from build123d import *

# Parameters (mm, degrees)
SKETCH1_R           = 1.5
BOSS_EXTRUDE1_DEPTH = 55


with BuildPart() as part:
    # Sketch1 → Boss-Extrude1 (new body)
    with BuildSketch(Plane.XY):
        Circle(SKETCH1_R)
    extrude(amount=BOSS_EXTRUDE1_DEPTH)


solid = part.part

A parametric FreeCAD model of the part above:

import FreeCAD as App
import Part
import Sketcher

V = App.Vector

doc = App.newDocument("Part")
body = doc.addObject("PartDesign::Body", "Body")

# Sketch on XY plane
sketch1 = body.newObject("Sketcher::SketchObject", "Sketch")
sketch1.AttachmentSupport = (doc.getObject("XY_Plane"), [""])
sketch1.MapMode = "FlatFace"
sketch1.addGeometry(Part.Circle(V(0, 0, 0), V(0, 0, 1), 1.5), False)
sketch1.addConstraint([
    Sketcher.Constraint("Coincident", 0, 3, -1, 1),
    Sketcher.Constraint("Diameter", 0, 3.0),
])
pad1 = body.newObject("PartDesign::Pad", "Pad")
pad1.Profile = sketch1
pad1.Length = 55

doc.recompute()
